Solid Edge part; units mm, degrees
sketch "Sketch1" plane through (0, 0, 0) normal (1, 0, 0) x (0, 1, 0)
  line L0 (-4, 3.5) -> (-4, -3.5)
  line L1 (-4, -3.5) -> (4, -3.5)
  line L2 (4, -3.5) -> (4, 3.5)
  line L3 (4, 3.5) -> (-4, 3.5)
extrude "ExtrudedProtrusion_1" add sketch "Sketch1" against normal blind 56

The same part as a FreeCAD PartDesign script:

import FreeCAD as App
import Part
import Sketcher

V = App.Vector
Q = App.Units.Quantity


def add_polygon(sketch, points):
    """Adds a closed chain of lines whose ends are joined by coincident constraints."""
    first, n = sketch.GeometryCount, len(points)
    for a, b in zip(points, points[1:] + points[:1]):
        sketch.addGeometry(Part.LineSegment(App.Vector(*a, 0), App.Vector(*b, 0)), False)
    for i in range(n):
        sketch.addConstraint(Sketcher.Constraint("Coincident", first + i, 2, first + (i + 1) % n, 1))

doc = App.newDocument("Part")
body = doc.addObject("PartDesign::Body", "Body")

# Sketch on YZ plane
sketch1 = body.newObject("Sketcher::SketchObject", "Sketch")
sketch1.AttachmentSupport = (doc.getObject("YZ_Plane"), [""])
sketch1.MapMode = "FlatFace"
add_polygon(sketch1, [(4, 4), (-4, 4), (-4, -4), (4, -4)])  # lines 0-3
sketch1.addConstraint([
    Sketcher.Constraint("Horizontal", 0),
    Sketcher.Constraint("Vertical", 1),
    Sketcher.Constraint("Horizontal", 2),
    Sketcher.Constraint("Vertical", 3),
    Sketcher.Constraint("Symmetric", 0, 2, 2, 2, -1, 1),
    Sketcher.Constraint("DistanceX", 0, 2, 0, 1, Q("8 mm")),
    Sketcher.Constraint("DistanceY", 1, 2, 1, 1, Q("7 mm")),
])
pad1 = body.newObject("PartDesign::Pad", "Pad")
pad1.Profile = sketch1
pad1.Length = 56
pad1.Reversed = True

doc.recompute()
